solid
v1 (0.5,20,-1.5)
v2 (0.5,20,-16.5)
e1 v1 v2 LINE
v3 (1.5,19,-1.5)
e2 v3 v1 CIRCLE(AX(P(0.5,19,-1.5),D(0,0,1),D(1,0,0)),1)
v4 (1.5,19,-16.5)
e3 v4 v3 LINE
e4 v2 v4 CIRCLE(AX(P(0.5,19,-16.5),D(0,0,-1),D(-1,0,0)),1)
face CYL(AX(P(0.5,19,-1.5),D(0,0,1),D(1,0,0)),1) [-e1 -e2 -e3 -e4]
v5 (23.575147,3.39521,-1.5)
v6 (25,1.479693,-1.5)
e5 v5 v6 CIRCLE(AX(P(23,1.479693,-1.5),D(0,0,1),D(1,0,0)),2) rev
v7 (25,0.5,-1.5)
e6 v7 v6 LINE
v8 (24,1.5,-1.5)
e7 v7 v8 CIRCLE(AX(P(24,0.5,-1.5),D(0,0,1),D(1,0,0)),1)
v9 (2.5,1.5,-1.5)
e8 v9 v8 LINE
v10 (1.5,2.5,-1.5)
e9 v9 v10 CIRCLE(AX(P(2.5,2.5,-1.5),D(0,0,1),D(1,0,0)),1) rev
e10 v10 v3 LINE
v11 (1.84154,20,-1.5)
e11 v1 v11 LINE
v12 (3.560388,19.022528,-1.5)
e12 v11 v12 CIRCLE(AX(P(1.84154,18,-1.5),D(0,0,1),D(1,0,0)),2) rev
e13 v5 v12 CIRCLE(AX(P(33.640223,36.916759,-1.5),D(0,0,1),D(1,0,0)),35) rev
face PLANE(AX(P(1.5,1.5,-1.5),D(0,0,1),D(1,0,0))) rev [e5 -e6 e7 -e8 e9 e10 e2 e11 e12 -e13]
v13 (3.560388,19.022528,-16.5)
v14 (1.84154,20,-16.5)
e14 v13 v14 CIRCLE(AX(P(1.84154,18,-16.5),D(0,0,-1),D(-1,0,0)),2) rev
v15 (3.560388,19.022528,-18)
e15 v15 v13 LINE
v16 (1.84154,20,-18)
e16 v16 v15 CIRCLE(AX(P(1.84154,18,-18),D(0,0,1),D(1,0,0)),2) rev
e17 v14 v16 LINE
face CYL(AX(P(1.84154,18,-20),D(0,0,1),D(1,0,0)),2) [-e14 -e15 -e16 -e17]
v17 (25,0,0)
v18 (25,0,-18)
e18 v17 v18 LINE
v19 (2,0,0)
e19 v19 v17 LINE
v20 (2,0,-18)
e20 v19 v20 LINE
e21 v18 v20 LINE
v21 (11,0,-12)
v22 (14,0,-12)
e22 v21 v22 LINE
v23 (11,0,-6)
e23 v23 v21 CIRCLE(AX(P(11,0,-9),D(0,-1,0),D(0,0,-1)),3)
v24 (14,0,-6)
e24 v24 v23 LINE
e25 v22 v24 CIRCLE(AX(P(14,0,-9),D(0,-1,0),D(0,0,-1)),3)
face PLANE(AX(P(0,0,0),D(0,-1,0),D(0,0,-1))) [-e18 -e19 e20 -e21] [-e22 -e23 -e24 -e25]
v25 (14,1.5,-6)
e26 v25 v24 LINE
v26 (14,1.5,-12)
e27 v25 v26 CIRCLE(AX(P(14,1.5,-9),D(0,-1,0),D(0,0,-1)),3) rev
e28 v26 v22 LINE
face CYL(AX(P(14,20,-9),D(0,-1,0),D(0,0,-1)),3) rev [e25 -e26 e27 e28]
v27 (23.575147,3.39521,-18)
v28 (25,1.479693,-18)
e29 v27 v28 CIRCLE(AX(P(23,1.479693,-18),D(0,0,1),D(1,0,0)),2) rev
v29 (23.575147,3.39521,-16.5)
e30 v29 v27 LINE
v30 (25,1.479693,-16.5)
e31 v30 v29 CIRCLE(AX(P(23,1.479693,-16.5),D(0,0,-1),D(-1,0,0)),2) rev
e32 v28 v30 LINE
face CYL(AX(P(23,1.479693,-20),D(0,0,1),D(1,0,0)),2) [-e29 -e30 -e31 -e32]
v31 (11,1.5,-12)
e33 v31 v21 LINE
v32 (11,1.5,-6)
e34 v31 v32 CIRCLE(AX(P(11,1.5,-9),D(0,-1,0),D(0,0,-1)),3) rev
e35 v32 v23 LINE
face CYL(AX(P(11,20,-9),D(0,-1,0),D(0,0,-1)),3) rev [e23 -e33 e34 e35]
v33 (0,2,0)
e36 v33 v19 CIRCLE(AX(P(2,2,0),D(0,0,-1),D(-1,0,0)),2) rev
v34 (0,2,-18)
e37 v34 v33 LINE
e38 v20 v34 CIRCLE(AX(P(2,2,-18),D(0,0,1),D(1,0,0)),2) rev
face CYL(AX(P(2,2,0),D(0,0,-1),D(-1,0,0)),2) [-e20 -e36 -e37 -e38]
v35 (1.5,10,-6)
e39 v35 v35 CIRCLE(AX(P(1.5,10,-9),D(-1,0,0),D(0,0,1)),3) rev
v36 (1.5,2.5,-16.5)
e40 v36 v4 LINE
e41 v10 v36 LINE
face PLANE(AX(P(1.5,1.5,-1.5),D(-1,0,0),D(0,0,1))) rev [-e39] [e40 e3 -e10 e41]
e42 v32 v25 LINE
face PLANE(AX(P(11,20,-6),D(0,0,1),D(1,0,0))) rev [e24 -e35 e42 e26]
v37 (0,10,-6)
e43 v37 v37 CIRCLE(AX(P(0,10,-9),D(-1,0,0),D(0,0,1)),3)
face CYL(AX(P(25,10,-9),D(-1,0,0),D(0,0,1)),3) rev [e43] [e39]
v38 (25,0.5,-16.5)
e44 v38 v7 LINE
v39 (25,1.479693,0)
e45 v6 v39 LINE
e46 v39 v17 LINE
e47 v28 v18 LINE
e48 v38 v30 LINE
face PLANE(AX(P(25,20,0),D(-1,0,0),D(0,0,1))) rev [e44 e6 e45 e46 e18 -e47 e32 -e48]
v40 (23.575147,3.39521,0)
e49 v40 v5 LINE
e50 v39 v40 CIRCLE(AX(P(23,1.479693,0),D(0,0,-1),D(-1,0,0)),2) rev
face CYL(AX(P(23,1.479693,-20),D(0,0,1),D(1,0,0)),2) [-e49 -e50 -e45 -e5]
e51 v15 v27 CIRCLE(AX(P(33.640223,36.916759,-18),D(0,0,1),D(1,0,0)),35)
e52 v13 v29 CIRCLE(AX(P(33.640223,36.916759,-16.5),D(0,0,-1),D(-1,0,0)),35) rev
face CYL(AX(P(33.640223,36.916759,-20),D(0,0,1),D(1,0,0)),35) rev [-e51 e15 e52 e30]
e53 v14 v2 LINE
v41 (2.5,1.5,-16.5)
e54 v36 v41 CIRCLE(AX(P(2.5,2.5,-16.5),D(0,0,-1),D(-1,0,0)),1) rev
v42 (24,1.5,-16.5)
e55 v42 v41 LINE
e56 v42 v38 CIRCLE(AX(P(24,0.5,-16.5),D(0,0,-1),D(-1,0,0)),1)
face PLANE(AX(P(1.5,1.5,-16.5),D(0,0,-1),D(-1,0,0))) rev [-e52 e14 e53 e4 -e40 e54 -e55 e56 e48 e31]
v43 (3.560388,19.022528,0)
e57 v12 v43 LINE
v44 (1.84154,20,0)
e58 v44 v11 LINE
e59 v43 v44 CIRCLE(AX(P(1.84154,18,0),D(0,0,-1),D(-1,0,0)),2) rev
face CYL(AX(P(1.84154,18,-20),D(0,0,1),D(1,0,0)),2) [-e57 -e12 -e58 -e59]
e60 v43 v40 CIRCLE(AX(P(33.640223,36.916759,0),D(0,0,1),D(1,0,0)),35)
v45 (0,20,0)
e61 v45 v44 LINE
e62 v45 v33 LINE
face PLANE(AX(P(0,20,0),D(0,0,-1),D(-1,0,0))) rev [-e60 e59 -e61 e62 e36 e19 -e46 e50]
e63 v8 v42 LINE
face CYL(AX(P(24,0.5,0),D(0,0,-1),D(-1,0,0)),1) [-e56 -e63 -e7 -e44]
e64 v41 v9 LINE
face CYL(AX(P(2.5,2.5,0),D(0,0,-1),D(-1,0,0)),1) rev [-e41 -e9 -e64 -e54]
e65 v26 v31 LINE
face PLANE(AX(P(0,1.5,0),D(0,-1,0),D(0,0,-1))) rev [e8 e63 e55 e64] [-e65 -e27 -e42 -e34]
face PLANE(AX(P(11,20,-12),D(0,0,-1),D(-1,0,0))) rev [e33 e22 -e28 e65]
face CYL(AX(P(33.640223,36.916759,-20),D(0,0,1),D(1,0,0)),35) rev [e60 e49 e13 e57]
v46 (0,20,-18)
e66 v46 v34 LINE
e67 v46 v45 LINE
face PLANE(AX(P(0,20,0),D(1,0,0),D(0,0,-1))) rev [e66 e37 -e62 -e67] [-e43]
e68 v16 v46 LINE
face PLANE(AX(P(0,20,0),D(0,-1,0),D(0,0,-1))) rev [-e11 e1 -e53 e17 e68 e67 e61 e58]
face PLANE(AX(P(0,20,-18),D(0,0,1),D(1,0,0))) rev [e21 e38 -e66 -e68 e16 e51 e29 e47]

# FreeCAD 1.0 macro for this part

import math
import FreeCAD as App
import Part
import Sketcher
from FreeCAD import Vector
Q = App.Units.Quantity


def edges_at(feature, points):
    """Names of the edges that pass closest to the given points."""
    edges = feature.Shape.Edges
    near = lambda p: min(range(len(edges)), key=lambda i: edges[i].distToShape(Part.Vertex(*p))[0])
    return sorted({f"Edge{near(p) + 1}" for p in points})

doc = App.newDocument("Part")
params = doc.addObject("Spreadsheet::Sheet", "Params")
for row, (alias, value) in enumerate([
    ("sketch1_width", "25 mm"),
    ("sketch1_height", "18 mm"),
    ("pad1_length", "20 mm"),
    ("sketch2_radius", "35 mm"),
    ("pocket1_length", "20 mm"),
    ("sketch3_diameter", "6 mm"),
    ("sketch4_radius", "3 mm"),
    ("sketch4_width", "3 mm"),
    ("sketch5_height", "15 mm"),
    ("sketch5_width", "23.5 mm"),
    ("pocket4_length", "18.5 mm"),
    ("fillet_radius", "1 mm"),
    ("fillet2_radius", "2 mm"),
], start=1):
    params.set(f"A{row}", alias)
    params.set(f"B{row}", "=" + value)
    params.setAlias(f"B{row}", alias)

body = doc.addObject("PartDesign::Body", "Body")

# Sketch on XZ plane
sketch1 = body.newObject("Sketcher::SketchObject", "Sketch")
sketch1.AttachmentSupport = (doc.getObject("XZ_Plane"), [""])
sketch1.MapMode = "FlatFace"
sketch1.addGeometry(Part.LineSegment(Vector(0, -18, 0), Vector(0, 0, 0)), False)
sketch1.addGeometry(Part.LineSegment(Vector(0, 0, 0), Vector(25, 0, 0)), False)
sketch1.addGeometry(Part.LineSegment(Vector(25, 0, 0), Vector(25, -18, 0)), False)
sketch1.addGeometry(Part.LineSegment(Vector(25, -18, 0), Vector(0, -18, 0)), False)
sketch1.addConstraint(Sketcher.Constraint("Coincident", 0, 2, 1, 1))
sketch1.addConstraint(Sketcher.Constraint("Coincident", 1, 2, 2, 1))
sketch1.addConstraint(Sketcher.Constraint("Coincident", 2, 2, 3, 1))
sketch1.addConstraint(Sketcher.Constraint("Coincident", 3, 2, 0, 1))
sketch1.addConstraint(Sketcher.Constraint("Vertical", 0))
sketch1.addConstraint(Sketcher.Constraint("Horizontal", 1))
sketch1.addConstraint(Sketcher.Constraint("Vertical", 2))
sketch1.addConstraint(Sketcher.Constraint("Horizontal", 3))
sketch1.addConstraint(Sketcher.Constraint("Coincident", 0, 2, -1, 1))
sketch1.addConstraint(Sketcher.Constraint("DistanceX", 1, 1, 1, 2, Q("25 mm")))
sketch1.addConstraint(Sketcher.Constraint("DistanceY", 0, 1, 0, 2, Q("18 mm")))
sketch1.setExpression("Constraints[9]", "Params.sketch1_width")
sketch1.setExpression("Constraints[10]", "Params.sketch1_height")
pad1 = body.newObject("PartDesign::Pad", "Pad")
pad1.Profile = sketch1
pad1.setExpression("Length", "Params.pad1_length")
pad1.Reversed = True

# Sketch on XY plane
sketch2 = body.newObject("Sketcher::SketchObject", "Sketch001")
sketch2.AttachmentSupport = (doc.getObject("XY_Plane"), [""])
sketch2.MapMode = "FlatFace"
sketch2.addGeometry(Part.ArcOfCircle(Part.Circle(Vector(34, 37, 0), Vector(0, 0, 1), 35), math.radians(-151), math.radians(-104)), False)
sketch2.addGeometry(Part.ArcOfCircle(Part.Circle(Vector(34, 37, 0), Vector(0, 0, 1), 35), math.radians(-104), math.radians(0)), False)
sketch2.addGeometry(Part.ArcOfCircle(Part.Circle(Vector(34, 37, 0), Vector(0, 0, 1), 35), math.radians(0), math.radians(209)), False)
sketch2.addConstraint(Sketcher.Constraint("Tangent", 0, 2, 1, 1))
sketch2.addConstraint(Sketcher.Constraint("Tangent", 1, 2, 2, 1))
sketch2.addConstraint(Sketcher.Constraint("Tangent", 2, 2, 0, 1))
sketch2.addConstraint(Sketcher.Constraint("Horizontal", 2, 3, 1, 2))
sketch2.addConstraint(Sketcher.Constraint("Radius", 0, Q("35 mm")))
sketch2.addConstraint(Sketcher.Constraint("DistanceX", -1, 1, 0, 2, Q("25 mm")))
sketch2.addConstraint(Sketcher.Constraint("DistanceY", -1, 1, 0, 2, Q("3 mm")))
sketch2.addConstraint(Sketcher.Constraint("DistanceX", -1, 1, 2, 2, Q("3 mm")))
sketch2.addConstraint(Sketcher.Constraint("DistanceY", -1, 1, 2, 2, Q("20 mm")))
sketch2.setExpression("Constraints[4]", "Params.sketch2_radius")
pocket1 = body.newObject("PartDesign::Pocket", "Pocket")
pocket1.Profile = sketch2
pocket1.setExpression("Length", "Params.pocket1_length")

# Sketch on YZ plane
sketch3 = body.newObject("Sketcher::SketchObject", "Sketch002")
sketch3.AttachmentSupport = (doc.getObject("YZ_Plane"), [""])
sketch3.MapMode = "FlatFace"
sketch3.addGeometry(Part.Circle(Vector(10, -9, 0), Vector(0, 0, 1), 3), False)
sketch3.addConstraint(Sketcher.Constraint("Diameter", 0, Q("6 mm")))
sketch3.addConstraint(Sketcher.Constraint("DistanceX", -1, 1, 0, 3, Q("10 mm")))
sketch3.addConstraint(Sketcher.Constraint("DistanceY", 0, 3, -1, 1, Q("9 mm")))
sketch3.setExpression("Constraints[0]", "Params.sketch3_diameter")
pocket2 = body.newObject("PartDesign::Pocket", "Pocket001")
pocket2.Profile = sketch3
pocket2.Type = "ThroughAll"
pocket2.Reversed = True

# Sketch on XZ plane
sketch4 = body.newObject("Sketcher::SketchObject", "Sketch003")
sketch4.AttachmentSupport = (doc.getObject("XZ_Plane"), [""])
sketch4.MapMode = "FlatFace"
sketch4.addGeometry(Part.LineSegment(Vector(14, -6, 0), Vector(11, -6, 0)), False)
sketch4.addGeometry(Part.ArcOfCircle(Part.Circle(Vector(11, -9, 0), Vector(0, 0, 1), 3), math.radians(90), math.radians(270)), False)
sketch4.addGeometry(Part.LineSegment(Vector(11, -12, 0), Vector(14, -12, 0)), False)
sketch4.addGeometry(Part.ArcOfCircle(Part.Circle(Vector(14, -9, 0), Vector(0, 0, 1), 3), math.radians(-90), math.radians(90)), False)
sketch4.addConstraint(Sketcher.Constraint("Tangent", 0, 2, 1, 1))
sketch4.addConstraint(Sketcher.Constraint("Tangent", 1, 2, 2, 1))
sketch4.addConstraint(Sketcher.Constraint("Tangent", 2, 2, 3, 1))
sketch4.addConstraint(Sketcher.Constraint("Tangent", 3, 2, 0, 1))
sketch4.addConstraint(Sketcher.Constraint("Horizontal", 0))
sketch4.addConstraint(Sketcher.Constraint("Horizontal", 2))
sketch4.addConstraint(Sketcher.Constraint("Radius", 1, Q("3 mm")))
sketch4.addConstraint(Sketcher.Constraint("DistanceX", 0, 2, 0, 1, Q("3 mm")))
sketch4.addConstraint(Sketcher.Constraint("DistanceX", -1, 1, 1, 3, Q("11 mm")))
sketch4.addConstraint(Sketcher.Constraint("DistanceY", 1, 3, -1, 1, Q("9 mm")))
sketch4.setExpression("Constraints[6]", "Params.sketch4_radius")
sketch4.setExpression("Constraints[7]", "Params.sketch4_width")
pocket3 = body.newObject("PartDesign::Pocket", "Pocket002")
pocket3.Profile = sketch4
pocket3.Type = "ThroughAll"

# Sketch on XZ plane
sketch5 = body.newObject("Sketcher::SketchObject", "Sketch004")
sketch5.AttachmentSupport = (doc.getObject("XZ_Plane"), [""])
sketch5.MapMode = "FlatFace"
sketch5.AttachmentOffset = App.Placement(Vector(0, 0, -20), App.Rotation())
sketch5.addGeometry(Part.LineSegment(Vector(2, -16, 0), Vector(2, -2, 0)), False)
sketch5.addGeometry(Part.LineSegment(Vector(2, -2, 0), Vector(25, -2, 0)), False)
sketch5.addGeometry(Part.LineSegment(Vector(25, -2, 0), Vector(25, -16, 0)), False)
sketch5.addGeometry(Part.LineSegment(Vector(25, -16, 0), Vector(2, -16, 0)), False)
sketch5.addConstraint(Sketcher.Constraint("Coincident", 0, 2, 1, 1))
sketch5.addConstraint(Sketcher.Constraint("Coincident", 1, 2, 2, 1))
sketch5.addConstraint(Sketcher.Constraint("Coincident", 2, 2, 3, 1))
sketch5.addConstraint(Sketcher.Constraint("Coincident", 3, 2, 0, 1))
sketch5.addConstraint(Sketcher.Constraint("Vertical", 0))
sketch5.addConstraint(Sketcher.Constraint("Horizontal", 1))
sketch5.addConstraint(Sketcher.Constraint("Vertical", 2))
sketch5.addConstraint(Sketcher.Constraint("Horizontal", 3))
sketch5.addConstraint(Sketcher.Constraint("DistanceY", 0, 1, 0, 2, Q("15 mm")))
sketch5.addConstraint(Sketcher.Constraint("DistanceX", 1, 1, 1, 2, Q("23.5 mm")))
sketch5.addConstraint(Sketcher.Constraint("DistanceX", -1, 1, 1, 2, Q("25 mm")))
sketch5.addConstraint(Sketcher.Constraint("DistanceY", 0, 2, -1, 1, Q("1.5 mm")))
sketch5.setExpression("Constraints[8]", "Params.sketch5_height")
sketch5.setExpression("Constraints[9]", "Params.sketch5_width")
pocket4 = body.newObject("PartDesign::Pocket", "Pocket003")
pocket4.Profile = sketch5
pocket4.setExpression("Length", "Params.pocket4_length")
pocket4.Reversed = True
doc.recompute()

fillet = body.newObject("PartDesign::Fillet", "Fillet")
fillet.Base = (pocket4, edges_at(pocket4, [(25, 1.5, -9), (1.5, 20, -9), (1.5, 1.5, -9)]))
fillet.setExpression("Radius", "Params.fillet_radius")
doc.recompute()

fillet2 = body.newObject("PartDesign::Fillet", "Fillet001")
fillet2.Base = (fillet, edges_at(fillet, [
    (3, 20, -0.75),
    (25, 3, -17.25),
    (0, 0, -9),
    (3, 20, -17.25),
    (25, 3, -0.75),
]))
fillet2.setExpression("Radius", "Params.fillet2_radius")

doc.recompute()
